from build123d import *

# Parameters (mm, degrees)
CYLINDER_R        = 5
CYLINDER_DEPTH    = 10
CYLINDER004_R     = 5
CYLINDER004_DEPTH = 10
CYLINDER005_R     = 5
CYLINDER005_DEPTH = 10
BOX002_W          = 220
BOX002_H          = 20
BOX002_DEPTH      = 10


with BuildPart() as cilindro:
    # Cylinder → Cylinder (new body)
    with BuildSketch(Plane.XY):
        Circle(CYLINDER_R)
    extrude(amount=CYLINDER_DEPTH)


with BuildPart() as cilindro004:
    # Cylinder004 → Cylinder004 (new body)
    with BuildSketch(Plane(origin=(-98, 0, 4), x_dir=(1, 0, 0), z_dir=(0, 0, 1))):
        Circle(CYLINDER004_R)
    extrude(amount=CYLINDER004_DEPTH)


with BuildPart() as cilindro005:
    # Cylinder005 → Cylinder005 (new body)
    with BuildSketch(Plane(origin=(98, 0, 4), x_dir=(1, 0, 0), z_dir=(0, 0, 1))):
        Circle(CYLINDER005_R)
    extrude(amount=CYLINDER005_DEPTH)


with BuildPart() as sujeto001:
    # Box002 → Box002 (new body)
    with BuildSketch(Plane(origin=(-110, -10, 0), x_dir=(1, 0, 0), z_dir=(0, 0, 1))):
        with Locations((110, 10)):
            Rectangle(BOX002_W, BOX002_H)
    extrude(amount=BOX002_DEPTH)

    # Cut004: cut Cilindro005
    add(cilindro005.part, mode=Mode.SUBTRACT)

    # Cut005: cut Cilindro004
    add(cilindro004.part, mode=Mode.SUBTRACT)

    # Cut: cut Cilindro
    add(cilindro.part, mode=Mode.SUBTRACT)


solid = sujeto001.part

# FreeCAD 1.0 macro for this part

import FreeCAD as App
import Part
import Sketcher
from FreeCAD import Vector
Q = App.Units.Quantity

doc = App.newDocument("Part")
params = doc.addObject("Spreadsheet::Sheet", "Params")
for row, (alias, value) in enumerate([
    ("sketch1_diameter", "10 mm"),
    ("pad1_length", "10 mm"),
    ("sketch2_diameter", "10 mm"),
    ("pad2_length", "10 mm"),
    ("sketch3_diameter", "10 mm"),
    ("pad3_length", "10 mm"),
    ("sketch4_width", "220 mm"),
    ("sketch4_height", "20 mm"),
    ("pad4_length", "10 mm"),
], start=1):
    params.set(f"A{row}", alias)
    params.set(f"B{row}", "=" + value)
    params.setAlias(f"B{row}", alias)

body = doc.addObject("PartDesign::Body", "Body")

# Sketch on XY plane
sketch1 = body.newObject("Sketcher::SketchObject", "Sketch")
sketch1.AttachmentSupport = (doc.getObject("XY_Plane"), [""])
sketch1.MapMode = "FlatFace"
sketch1.addGeometry(Part.Circle(Vector(0, 0, 0), Vector(0, 0, 1), 5), False)
sketch1.addConstraint([
    Sketcher.Constraint("Coincident", 0, 3, -1, 1),
    Sketcher.Constraint("Diameter", 0, Q("10 mm")),
])
sketch1.setExpression("Constraints[1]", "Params.sketch1_diameter")
pad1 = body.newObject("PartDesign::Pad", "Pad")
pad1.Profile = sketch1
pad1.setExpression("Length", "Params.pad1_length")
body2 = doc.addObject("PartDesign::Body", "Body001")

# Sketch on XY plane
sketch2 = body2.newObject("Sketcher::SketchObject", "Sketch001")
sketch2.AttachmentSupport = (doc.getObject("XY_Plane001"), [""])
sketch2.MapMode = "FlatFace"
sketch2.AttachmentOffset = App.Placement(Vector(0, 0, 4), App.Rotation())
sketch2.addGeometry(Part.Circle(Vector(-98, 0, 0), Vector(0, 0, 1), 5), False)
sketch2.addConstraint([
    Sketcher.Constraint("PointOnObject", 0, 3, -1),
    Sketcher.Constraint("Diameter", 0, Q("10 mm")),
    Sketcher.Constraint("DistanceX", 0, 3, -1, 1, Q("98 mm")),
])
sketch2.setExpression("Constraints[1]", "Params.sketch2_diameter")
pad2 = body2.newObject("PartDesign::Pad", "Pad001")
pad2.Profile = sketch2
pad2.setExpression("Length", "Params.pad2_length")
body3 = doc.addObject("PartDesign::Body", "Body002")

# Sketch on XY plane
sketch3 = body3.newObject("Sketcher::SketchObject", "Sketch002")
sketch3.AttachmentSupport = (doc.getObject("XY_Plane002"), [""])
sketch3.MapMode = "FlatFace"
sketch3.AttachmentOffset = App.Placement(Vector(0, 0, 4), App.Rotation())
sketch3.addGeometry(Part.Circle(Vector(98, 0, 0), Vector(0, 0, 1), 5), False)
sketch3.addConstraint([
    Sketcher.Constraint("PointOnObject", 0, 3, -1),
    Sketcher.Constraint("Diameter", 0, Q("10 mm")),
    Sketcher.Constraint("DistanceX", -1, 1, 0, 3, Q("98 mm")),
])
sketch3.setExpression("Constraints[1]", "Params.sketch3_diameter")
pad3 = body3.newObject("PartDesign::Pad", "Pad002")
pad3.Profile = sketch3
pad3.setExpression("Length", "Params.pad3_length")
body4 = doc.addObject("PartDesign::Body", "Body003")

# Sketch on XY plane
sketch4 = body4.newObject("Sketcher::SketchObject", "Sketch003")
sketch4.AttachmentSupport = (doc.getObject("XY_Plane003"), [""])
sketch4.MapMode = "FlatFace"
sketch4.addGeometry([
    Part.LineSegment(Vector(-110, 10, 0), Vector(-110, -10, 0)),
    Part.LineSegment(Vector(-110, -10, 0), Vector(110, -10, 0)),
    Part.LineSegment(Vector(110, -10, 0), Vector(110, 10, 0)),
    Part.LineSegment(Vector(110, 10, 0), Vector(-110, 10, 0)),
], False)
sketch4.addConstraint([
    Sketcher.Constraint("Coincident", 0, 2, 1, 1),
    Sketcher.Constraint("Coincident", 1, 2, 2, 1),
    Sketcher.Constraint("Coincident", 2, 2, 3, 1),
    Sketcher.Constraint("Coincident", 3, 2, 0, 1),
    Sketcher.Constraint("Vertical", 0),
    Sketcher.Constraint("Horizontal", 1),
    Sketcher.Constraint("Vertical", 2),
    Sketcher.Constraint("Horizontal", 3),
    Sketcher.Constraint("Symmetric", 0, 2, 2, 2, -1, 1),
    Sketcher.Constraint("DistanceX", 1, 1, 1, 2, Q("220 mm")),
    Sketcher.Constraint("DistanceY", 0, 2, 0, 1, Q("20 mm")),
])
sketch4.setExpression("Constraints[9]", "Params.sketch4_width")
sketch4.setExpression("Constraints[10]", "Params.sketch4_height")
pad4 = body4.newObject("PartDesign::Pad", "Pad003")
pad4.Profile = sketch4
pad4.setExpression("Length", "Params.pad4_length")
doc.recompute()

boolean = body4.newObject("PartDesign::Boolean", "Boolean")
boolean.Type = "Cut"
boolean.addObjects([body3])
doc.recompute()

boolean2 = body4.newObject("PartDesign::Boolean", "Boolean001")
boolean2.Type = "Cut"
boolean2.addObjects([body2])
doc.recompute()

boolean3 = body4.newObject("PartDesign::Boolean", "Boolean002")
boolean3.Type = "Cut"
boolean3.addObjects([body])

doc.recompute()
